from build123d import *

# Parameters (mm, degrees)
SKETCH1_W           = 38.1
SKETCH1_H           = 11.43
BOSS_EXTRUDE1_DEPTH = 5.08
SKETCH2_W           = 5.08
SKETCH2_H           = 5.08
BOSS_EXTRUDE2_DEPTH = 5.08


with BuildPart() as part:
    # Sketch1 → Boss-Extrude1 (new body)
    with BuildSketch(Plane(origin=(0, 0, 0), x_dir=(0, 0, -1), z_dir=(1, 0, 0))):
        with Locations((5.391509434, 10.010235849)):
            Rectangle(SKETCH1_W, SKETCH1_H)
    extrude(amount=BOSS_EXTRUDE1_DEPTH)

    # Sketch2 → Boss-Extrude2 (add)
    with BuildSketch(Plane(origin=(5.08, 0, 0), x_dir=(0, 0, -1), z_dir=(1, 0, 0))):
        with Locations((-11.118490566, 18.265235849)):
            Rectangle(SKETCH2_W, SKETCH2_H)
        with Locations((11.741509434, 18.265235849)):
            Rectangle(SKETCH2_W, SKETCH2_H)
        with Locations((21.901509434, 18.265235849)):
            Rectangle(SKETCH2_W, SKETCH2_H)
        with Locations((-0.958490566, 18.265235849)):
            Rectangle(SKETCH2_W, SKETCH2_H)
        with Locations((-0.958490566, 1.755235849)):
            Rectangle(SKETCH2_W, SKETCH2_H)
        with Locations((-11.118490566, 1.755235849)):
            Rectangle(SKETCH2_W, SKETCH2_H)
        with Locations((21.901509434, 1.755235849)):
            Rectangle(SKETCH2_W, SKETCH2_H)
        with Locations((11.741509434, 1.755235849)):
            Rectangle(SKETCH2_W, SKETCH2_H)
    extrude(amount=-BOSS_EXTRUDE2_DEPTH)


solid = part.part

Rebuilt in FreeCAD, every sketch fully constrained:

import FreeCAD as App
import Part
import Sketcher
from FreeCAD import Vector
Q = App.Units.Quantity

doc = App.newDocument("Part")
params = doc.addObject("Spreadsheet::Sheet", "Params")
for row, (alias, value) in enumerate([
    ("sketch1_height", "1.5 in"),
    ("sketch1_width", "0.45 in"),
    ("pad1_length", "0.2 in"),
    ("sketch2_width", "0.2 in"),
    ("pad2_length", "0.2 in"),
], start=1):
    params.set(f"A{row}", alias)
    params.set(f"B{row}", "=" + value)
    params.setAlias(f"B{row}", alias)

body = doc.addObject("PartDesign::Body", "Body")

# Sketch on YZ plane
sketch1 = body.newObject("Sketcher::SketchObject", "Sketch")
sketch1.AttachmentSupport = (doc.getObject("YZ_Plane"), [""])
sketch1.MapMode = "FlatFace"
sketch1.addGeometry([
    Part.LineSegment(Vector(16, 14, 0), Vector(4, 14, 0)),
    Part.LineSegment(Vector(4, 14, 0), Vector(4, -24, 0)),
    Part.LineSegment(Vector(4, -24, 0), Vector(16, -24, 0)),
    Part.LineSegment(Vector(16, -24, 0), Vector(16, 14, 0)),
], False)
sketch1.addConstraint([
    Sketcher.Constraint("Coincident", 0, 2, 1, 1),
    Sketcher.Constraint("Coincident", 1, 2, 2, 1),
    Sketcher.Constraint("Coincident", 2, 2, 3, 1),
    Sketcher.Constraint("Coincident", 3, 2, 0, 1),
    Sketcher.Constraint("Horizontal", 0),
    Sketcher.Constraint("Vertical", 1),
    Sketcher.Constraint("Horizontal", 2),
    Sketcher.Constraint("Vertical", 3),
    Sketcher.Constraint("DistanceY", 1, 2, 1, 1, Q("1.5 in")),
    Sketcher.Constraint("DistanceX", 0, 2, 0, 1, Q("0.45 in")),
    Sketcher.Constraint("DistanceY", -1, 1, 0, 2, 13.658491),
    Sketcher.Constraint("DistanceX", -1, 1, 0, 2, 4.295236),
])
sketch1.setExpression("Constraints[8]", "Params.sketch1_height")
sketch1.setExpression("Constraints[9]", "Params.sketch1_width")
pad1 = body.newObject("PartDesign::Pad", "Pad")
pad1.Profile = sketch1
pad1.setExpression("Length", "Params.pad1_length")

# Sketch on YZ plane
sketch2 = body.newObject("Sketcher::SketchObject", "Sketch001")
sketch2.AttachmentSupport = (doc.getObject("YZ_Plane"), [""])
sketch2.MapMode = "FlatFace"
sketch2.AttachmentOffset = App.Placement(Vector(0, 0, 0.2 * 25.4), App.Rotation())
sketch2.addGeometry([
    Part.LineSegment(Vector(21, 14, 0), Vector(16, 14, 0)),  # 0
    Part.LineSegment(Vector(16, 14, 0), Vector(16, 9, 0)),  # 1
    Part.LineSegment(Vector(16, 9, 0), Vector(21, 9, 0)),  # 2
    Part.LineSegment(Vector(21, 9, 0), Vector(21, 14, 0)),  # 3
    Part.LineSegment(Vector(21, -9, 0), Vector(16, -9, 0)),  # 4
    Part.LineSegment(Vector(16, -9, 0), Vector(16, -14, 0)),  # 5
    Part.LineSegment(Vector(16, -14, 0), Vector(21, -14, 0)),  # 6
    Part.LineSegment(Vector(21, -14, 0), Vector(21, -9, 0)),  # 7
    Part.LineSegment(Vector(21, -19, 0), Vector(16, -19, 0)),  # 8
    Part.LineSegment(Vector(16, -19, 0), Vector(16, -24, 0)),  # 9
    Part.LineSegment(Vector(16, -24, 0), Vector(21, -24, 0)),  # 10
    Part.LineSegment(Vector(21, -24, 0), Vector(21, -19, 0)),  # 11
    Part.LineSegment(Vector(21, 3, 0), Vector(16, 3, 0)),  # 12
    Part.LineSegment(Vector(16, 3, 0), Vector(16, -2, 0)),  # 13
    Part.LineSegment(Vector(16, -2, 0), Vector(21, -2, 0)),  # 14
    Part.LineSegment(Vector(21, -2, 0), Vector(21, 3, 0)),  # 15
    Part.LineSegment(Vector(4, 3, 0), Vector(-1, 3, 0)),  # 16
    Part.LineSegment(Vector(-1, 3, 0), Vector(-1, -2, 0)),  # 17
    Part.LineSegment(Vector(-1, -2, 0), Vector(4, -2, 0)),  # 18
    Part.LineSegment(Vector(4, -2, 0), Vector(4, 3, 0)),  # 19
    Part.LineSegment(Vector(4, 14, 0), Vector(-1, 14, 0)),  # 20
    Part.LineSegment(Vector(-1, 14, 0), Vector(-1, 9, 0)),  # 21
    Part.LineSegment(Vector(-1, 9, 0), Vector(4, 9, 0)),  # 22
    Part.LineSegment(Vector(4, 9, 0), Vector(4, 14, 0)),  # 23
    Part.LineSegment(Vector(4, -19, 0), Vector(-1, -19, 0)),  # 24
    Part.LineSegment(Vector(-1, -19, 0), Vector(-1, -24, 0)),  # 25
    Part.LineSegment(Vector(-1, -24, 0), Vector(4, -24, 0)),  # 26
    Part.LineSegment(Vector(4, -24, 0), Vector(4, -19, 0)),  # 27
    Part.LineSegment(Vector(4, -9, 0), Vector(-1, -9, 0)),  # 28
    Part.LineSegment(Vector(-1, -9, 0), Vector(-1, -14, 0)),  # 29
    Part.LineSegment(Vector(-1, -14, 0), Vector(4, -14, 0)),  # 30
    Part.LineSegment(Vector(4, -14, 0), Vector(4, -9, 0)),  # 31
], False)
sketch2.addConstraint([
    Sketcher.Constraint("Coincident", 0, 2, 1, 1),
    Sketcher.Constraint("Coincident", 1, 2, 2, 1),
    Sketcher.Constraint("Coincident", 2, 2, 3, 1),
    Sketcher.Constraint("Coincident", 3, 2, 0, 1),
    Sketcher.Constraint("Coincident", 4, 2, 5, 1),
    Sketcher.Constraint("Coincident", 5, 2, 6, 1),
    Sketcher.Constraint("Coincident", 6, 2, 7, 1),
    Sketcher.Constraint("Coincident", 7, 2, 4, 1),
    Sketcher.Constraint("Coincident", 8, 2, 9, 1),
    Sketcher.Constraint("Coincident", 9, 2, 10, 1),
    Sketcher.Constraint("Coincident", 10, 2, 11, 1),
    Sketcher.Constraint("Coincident", 11, 2, 8, 1),
    Sketcher.Constraint("Coincident", 12, 2, 13, 1),
    Sketcher.Constraint("Coincident", 13, 2, 14, 1),
    Sketcher.Constraint("Coincident", 14, 2, 15, 1),
    Sketcher.Constraint("Coincident", 15, 2, 12, 1),
    Sketcher.Constraint("Coincident", 16, 2, 17, 1),
    Sketcher.Constraint("Coincident", 17, 2, 18, 1),
    Sketcher.Constraint("Coincident", 18, 2, 19, 1),
    Sketcher.Constraint("Coincident", 19, 2, 16, 1),
    Sketcher.Constraint("Coincident", 20, 2, 21, 1),
    Sketcher.Constraint("Coincident", 21, 2, 22, 1),
    Sketcher.Constraint("Coincident", 22, 2, 23, 1),
    Sketcher.Constraint("Coincident", 23, 2, 20, 1),
    Sketcher.Constraint("Coincident", 24, 2, 25, 1),
    Sketcher.Constraint("Coincident", 25, 2, 26, 1),
    Sketcher.Constraint("Coincident", 26, 2, 27, 1),
    Sketcher.Constraint("Coincident", 27, 2, 24, 1),
    Sketcher.Constraint("Coincident", 28, 2, 29, 1),
    Sketcher.Constraint("Coincident", 29, 2, 30, 1),
    Sketcher.Constraint("Coincident", 30, 2, 31, 1),
    Sketcher.Constraint("Coincident", 31, 2, 28, 1),
    Sketcher.Constraint("Horizontal", 0),
    Sketcher.Constraint("Vertical", 1),
    Sketcher.Constraint("Horizontal", 2),
    Sketcher.Constraint("Vertical", 3),
    Sketcher.Constraint("Horizontal", 4),
    Sketcher.Constraint("Vertical", 5),
    Sketcher.Constraint("Horizontal", 6),
    Sketcher.Constraint("Vertical", 7),
    Sketcher.Constraint("Horizontal", 8),
    Sketcher.Constraint("Vertical", 9),
    Sketcher.Constraint("Horizontal", 10),
    Sketcher.Constraint("Vertical", 11),
    Sketcher.Constraint("Horizontal", 12),
    Sketcher.Constraint("Vertical", 13),
    Sketcher.Constraint("Horizontal", 14),
    Sketcher.Constraint("Vertical", 15),
    Sketcher.Constraint("Horizontal", 16),
    Sketcher.Constraint("Vertical", 17),
    Sketcher.Constraint("Horizontal", 18),
    Sketcher.Constraint("Vertical", 19),
    Sketcher.Constraint("Horizontal", 20),
    Sketcher.Constraint("Vertical", 21),
    Sketcher.Constraint("Horizontal", 22),
    Sketcher.Constraint("Vertical", 23),
    Sketcher.Constraint("Horizontal", 24),
    Sketcher.Constraint("Vertical", 25),
    Sketcher.Constraint("Horizontal", 26),
    Sketcher.Constraint("Vertical", 27),
    Sketcher.Constraint("Horizontal", 28),
    Sketcher.Constraint("Vertical", 29),
    Sketcher.Constraint("Horizontal", 30),
    Sketcher.Constraint("Vertical", 31),
    Sketcher.Constraint("Horizontal", 15, 2, 16, 2),
    Sketcher.Constraint("Horizontal", 14, 2, 17, 2),
    Sketcher.Constraint("Horizontal", 3, 2, 20, 2),
    Sketcher.Constraint("Horizontal", 2, 2, 21, 2),
    Sketcher.Constraint("Horizontal", 11, 2, 24, 2),
    Sketcher.Constraint("Horizontal", 10, 2, 25, 2),
    Sketcher.Constraint("Horizontal", 7, 2, 28, 2),
    Sketcher.Constraint("Horizontal", 6, 2, 29, 2),
    Sketcher.Constraint("Vertical", 1, 2, 4, 2),
    Sketcher.Constraint("Vertical", 3, 2, 6, 2),
    Sketcher.Constraint("Vertical", 5, 2, 8, 2),
    Sketcher.Constraint("Vertical", 7, 2, 10, 2),
    Sketcher.Constraint("Vertical", 9, 2, 12, 2),
    Sketcher.Constraint("Vertical", 11, 2, 14, 2),
    Sketcher.Constraint("Vertical", 17, 2, 20, 2),
    Sketcher.Constraint("Vertical", 19, 2, 22, 2),
    Sketcher.Constraint("Vertical", 21, 2, 24, 2),
    Sketcher.Constraint("Vertical", 23, 2, 26, 2),
    Sketcher.Constraint("Vertical", 25, 2, 28, 2),
    Sketcher.Constraint("Vertical", 27, 2, 30, 2),
    Sketcher.Constraint("Equal", 14, 16),
    Sketcher.Constraint("Equal", 30, 1),
    Sketcher.Constraint("Equal", 3, 5),
    Sketcher.Constraint("Equal", 7, 9),
    Sketcher.Constraint("Equal", 11, 13),
    Sketcher.Constraint("DistanceX", 0, 2, 0, 1, Q("0.2 in")),
    Sketcher.Constraint("DistanceY", 4, 2, 1, 2, Q("0.7 in")),
    Sketcher.Constraint("DistanceY", 8, 2, 5, 2, Q("0.2 in")),
    Sketcher.Constraint("DistanceY", 12, 2, 1, 2, Q("0.2 in")),
    Sketcher.Constraint("DistanceX", 16, 2, 12, 2, Q("0.65 in")),
    Sketcher.Constraint("DistanceY", -1, 1, 0, 2, 13.658491),
    Sketcher.Constraint("DistanceX", -1, 1, 0, 2, 15.725236),
])
sketch2.setExpression("Constraints[89]", "Params.sketch2_width")
pad2 = body.newObject("PartDesign::Pad", "Pad001")
pad2.Profile = sketch2
pad2.setExpression("Length", "Params.pad2_length")
pad2.Reversed = True

doc.recompute()
